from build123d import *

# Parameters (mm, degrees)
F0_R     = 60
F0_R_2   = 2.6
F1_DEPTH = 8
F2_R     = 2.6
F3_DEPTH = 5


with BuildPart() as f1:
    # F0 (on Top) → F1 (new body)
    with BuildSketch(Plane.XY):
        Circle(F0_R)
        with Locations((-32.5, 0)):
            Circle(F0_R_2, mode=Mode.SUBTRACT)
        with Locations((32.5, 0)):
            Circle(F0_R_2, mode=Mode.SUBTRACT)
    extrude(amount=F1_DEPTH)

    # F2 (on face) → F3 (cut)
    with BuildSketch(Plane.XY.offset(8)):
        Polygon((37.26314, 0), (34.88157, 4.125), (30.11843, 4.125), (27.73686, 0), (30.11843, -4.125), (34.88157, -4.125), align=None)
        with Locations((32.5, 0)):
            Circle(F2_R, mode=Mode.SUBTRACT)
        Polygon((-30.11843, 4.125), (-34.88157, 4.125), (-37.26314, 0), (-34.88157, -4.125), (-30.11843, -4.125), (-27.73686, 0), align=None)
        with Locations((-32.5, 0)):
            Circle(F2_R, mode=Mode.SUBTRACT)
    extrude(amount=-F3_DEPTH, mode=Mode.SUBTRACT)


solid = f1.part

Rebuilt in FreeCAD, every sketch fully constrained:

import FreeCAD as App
import Part
import Sketcher

V = App.Vector
Q = App.Units.Quantity

doc = App.newDocument("Part")
body = doc.addObject("PartDesign::Body", "Body")

sketch1 = body.newObject("Sketcher::SketchObject", "Sketch")
sketch1.AttachmentSupport = (doc.getObject("XY_Plane"), [""])
sketch1.MapMode = "FlatFace"
sketch1.addGeometry([
    Part.Circle(V(0, 0, 0), V(0, 0, 1), 60),
    Part.Circle(V(-32.5, 0, 0), V(0, 0, 1), 2.6),
    Part.Circle(V(32.5, 0, 0), V(0, 0, 1), 2.6),
], False)
sketch1.addConstraint([
    Sketcher.Constraint("Coincident", 0, 3, -1, 1),
    Sketcher.Constraint("Equal", 1, 2),
    Sketcher.Constraint("Symmetric", 1, 3, 2, 3, -1, 1),
    Sketcher.Constraint("PointOnObject", 1, 3, -1),
    Sketcher.Constraint("Diameter", 0, 120.0),
    Sketcher.Constraint("Diameter", 1, 5.2),
    Sketcher.Constraint("DistanceX", 1, 3, 2, 3, 65.0),
])
pad1 = body.newObject("PartDesign::Pad", "Pad")
pad1.Profile = sketch1
pad1.Length = 8

sketch2 = body.newObject("Sketcher::SketchObject", "Sketch001")
sketch2.AttachmentSupport = (doc.getObject("XY_Plane"), [""])
sketch2.MapMode = "FlatFace"
sketch2.AttachmentOffset = App.Placement(V(0, 0, 8), App.Rotation())
sketch2.addGeometry([
    Part.LineSegment(V(37.3, 0, 0), V(34.9, 4.1, 0)),
    Part.LineSegment(V(34.9, 4.1, 0), V(30.1, 4.1, 0)),
    Part.LineSegment(V(30.1, 4.1, 0), V(27.7, 0, 0)),
    Part.LineSegment(V(27.7, 0, 0), V(30.1, -4.1, 0)),
    Part.LineSegment(V(30.1, -4.1, 0), V(34.9, -4.1, 0)),
    Part.LineSegment(V(34.9, -4.1, 0), V(37.3, 0, 0)),
    Part.Circle(V(32.5, 0, 0), V(0, 0, 1), 2.6),
    Part.LineSegment(V(-30.1, 4.1, 0), V(-34.9, 4.1, 0)),
    Part.LineSegment(V(-34.9, 4.1, 0), V(-37.3, 0, 0)),
    Part.LineSegment(V(-37.3, 0, 0), V(-34.9, -4.1, 0)),
    Part.LineSegment(V(-34.9, -4.1, 0), V(-30.1, -4.1, 0)),
    Part.LineSegment(V(-30.1, -4.1, 0), V(-27.7, 0, 0)),
    Part.LineSegment(V(-27.7, 0, 0), V(-30.1, 4.1, 0)),
    Part.Circle(V(-32.5, 0, 0), V(0, 0, 1), 2.6),
], False)
sketch2.addConstraint([
    Sketcher.Constraint("Coincident", 0, 2, 1, 1),
    Sketcher.Constraint("Coincident", 1, 2, 2, 1),
    Sketcher.Constraint("Coincident", 2, 2, 3, 1),
    Sketcher.Constraint("Coincident", 3, 2, 4, 1),
    Sketcher.Constraint("Coincident", 4, 2, 5, 1),
    Sketcher.Constraint("Coincident", 5, 2, 0, 1),
    Sketcher.Constraint("Coincident", 7, 2, 8, 1),
    Sketcher.Constraint("Coincident", 8, 2, 9, 1),
    Sketcher.Constraint("Coincident", 9, 2, 10, 1),
    Sketcher.Constraint("Coincident", 10, 2, 11, 1),
    Sketcher.Constraint("Coincident", 11, 2, 12, 1),
    Sketcher.Constraint("Coincident", 12, 2, 7, 1),
    Sketcher.Constraint("Horizontal", 1),
    Sketcher.Constraint("Horizontal", 4),
    Sketcher.Constraint("Horizontal", 7),
    Sketcher.Constraint("Horizontal", 10),
    Sketcher.Constraint("Equal", 6, 13),
    Sketcher.Constraint("Symmetric", 6, 3, 13, 3, -1, 1),
    Sketcher.Constraint("Symmetric", 4, 2, 7, 2, -1, 1),
    Sketcher.Constraint("Symmetric", 5, 2, 8, 2, -1, 1),
    Sketcher.Constraint("Symmetric", 0, 2, 9, 2, -1, 1),
    Sketcher.Constraint("Symmetric", 2, 2, 11, 2, -1, 1),
    Sketcher.Constraint("Symmetric", 0, 2, 7, 2, -2),
    Sketcher.Constraint("PointOnObject", 6, 3, -1),
    Sketcher.Constraint("PointOnObject", 2, 2, -1),
    Sketcher.Constraint("PointOnObject", 5, 2, -1),
    Sketcher.Constraint("Parallel", 0, 3),
    Sketcher.Constraint("Parallel", 2, 5),
    Sketcher.Constraint("Parallel", 8, 11),
    Sketcher.Constraint("Parallel", 9, 12),
    Sketcher.Constraint("Diameter", 6, 5.2),
    Sketcher.Constraint("Angle", 0, Q("120.000001 deg")),
    Sketcher.Constraint("DistanceX", 13, 3, 6, 3, 65.0),
    Sketcher.Constraint("DistanceX", 7, 2, 1, 2, 65.0),
    Sketcher.Constraint("DistanceY", 3, 2, 1, 2, 8.25),
    Sketcher.Constraint("DistanceX", 1, 2, 1, 1, 4.76314),
])
pocket1 = body.newObject("PartDesign::Pocket", "Pocket")
pocket1.Profile = sketch2
pocket1.Length = 5

doc.recompute()
